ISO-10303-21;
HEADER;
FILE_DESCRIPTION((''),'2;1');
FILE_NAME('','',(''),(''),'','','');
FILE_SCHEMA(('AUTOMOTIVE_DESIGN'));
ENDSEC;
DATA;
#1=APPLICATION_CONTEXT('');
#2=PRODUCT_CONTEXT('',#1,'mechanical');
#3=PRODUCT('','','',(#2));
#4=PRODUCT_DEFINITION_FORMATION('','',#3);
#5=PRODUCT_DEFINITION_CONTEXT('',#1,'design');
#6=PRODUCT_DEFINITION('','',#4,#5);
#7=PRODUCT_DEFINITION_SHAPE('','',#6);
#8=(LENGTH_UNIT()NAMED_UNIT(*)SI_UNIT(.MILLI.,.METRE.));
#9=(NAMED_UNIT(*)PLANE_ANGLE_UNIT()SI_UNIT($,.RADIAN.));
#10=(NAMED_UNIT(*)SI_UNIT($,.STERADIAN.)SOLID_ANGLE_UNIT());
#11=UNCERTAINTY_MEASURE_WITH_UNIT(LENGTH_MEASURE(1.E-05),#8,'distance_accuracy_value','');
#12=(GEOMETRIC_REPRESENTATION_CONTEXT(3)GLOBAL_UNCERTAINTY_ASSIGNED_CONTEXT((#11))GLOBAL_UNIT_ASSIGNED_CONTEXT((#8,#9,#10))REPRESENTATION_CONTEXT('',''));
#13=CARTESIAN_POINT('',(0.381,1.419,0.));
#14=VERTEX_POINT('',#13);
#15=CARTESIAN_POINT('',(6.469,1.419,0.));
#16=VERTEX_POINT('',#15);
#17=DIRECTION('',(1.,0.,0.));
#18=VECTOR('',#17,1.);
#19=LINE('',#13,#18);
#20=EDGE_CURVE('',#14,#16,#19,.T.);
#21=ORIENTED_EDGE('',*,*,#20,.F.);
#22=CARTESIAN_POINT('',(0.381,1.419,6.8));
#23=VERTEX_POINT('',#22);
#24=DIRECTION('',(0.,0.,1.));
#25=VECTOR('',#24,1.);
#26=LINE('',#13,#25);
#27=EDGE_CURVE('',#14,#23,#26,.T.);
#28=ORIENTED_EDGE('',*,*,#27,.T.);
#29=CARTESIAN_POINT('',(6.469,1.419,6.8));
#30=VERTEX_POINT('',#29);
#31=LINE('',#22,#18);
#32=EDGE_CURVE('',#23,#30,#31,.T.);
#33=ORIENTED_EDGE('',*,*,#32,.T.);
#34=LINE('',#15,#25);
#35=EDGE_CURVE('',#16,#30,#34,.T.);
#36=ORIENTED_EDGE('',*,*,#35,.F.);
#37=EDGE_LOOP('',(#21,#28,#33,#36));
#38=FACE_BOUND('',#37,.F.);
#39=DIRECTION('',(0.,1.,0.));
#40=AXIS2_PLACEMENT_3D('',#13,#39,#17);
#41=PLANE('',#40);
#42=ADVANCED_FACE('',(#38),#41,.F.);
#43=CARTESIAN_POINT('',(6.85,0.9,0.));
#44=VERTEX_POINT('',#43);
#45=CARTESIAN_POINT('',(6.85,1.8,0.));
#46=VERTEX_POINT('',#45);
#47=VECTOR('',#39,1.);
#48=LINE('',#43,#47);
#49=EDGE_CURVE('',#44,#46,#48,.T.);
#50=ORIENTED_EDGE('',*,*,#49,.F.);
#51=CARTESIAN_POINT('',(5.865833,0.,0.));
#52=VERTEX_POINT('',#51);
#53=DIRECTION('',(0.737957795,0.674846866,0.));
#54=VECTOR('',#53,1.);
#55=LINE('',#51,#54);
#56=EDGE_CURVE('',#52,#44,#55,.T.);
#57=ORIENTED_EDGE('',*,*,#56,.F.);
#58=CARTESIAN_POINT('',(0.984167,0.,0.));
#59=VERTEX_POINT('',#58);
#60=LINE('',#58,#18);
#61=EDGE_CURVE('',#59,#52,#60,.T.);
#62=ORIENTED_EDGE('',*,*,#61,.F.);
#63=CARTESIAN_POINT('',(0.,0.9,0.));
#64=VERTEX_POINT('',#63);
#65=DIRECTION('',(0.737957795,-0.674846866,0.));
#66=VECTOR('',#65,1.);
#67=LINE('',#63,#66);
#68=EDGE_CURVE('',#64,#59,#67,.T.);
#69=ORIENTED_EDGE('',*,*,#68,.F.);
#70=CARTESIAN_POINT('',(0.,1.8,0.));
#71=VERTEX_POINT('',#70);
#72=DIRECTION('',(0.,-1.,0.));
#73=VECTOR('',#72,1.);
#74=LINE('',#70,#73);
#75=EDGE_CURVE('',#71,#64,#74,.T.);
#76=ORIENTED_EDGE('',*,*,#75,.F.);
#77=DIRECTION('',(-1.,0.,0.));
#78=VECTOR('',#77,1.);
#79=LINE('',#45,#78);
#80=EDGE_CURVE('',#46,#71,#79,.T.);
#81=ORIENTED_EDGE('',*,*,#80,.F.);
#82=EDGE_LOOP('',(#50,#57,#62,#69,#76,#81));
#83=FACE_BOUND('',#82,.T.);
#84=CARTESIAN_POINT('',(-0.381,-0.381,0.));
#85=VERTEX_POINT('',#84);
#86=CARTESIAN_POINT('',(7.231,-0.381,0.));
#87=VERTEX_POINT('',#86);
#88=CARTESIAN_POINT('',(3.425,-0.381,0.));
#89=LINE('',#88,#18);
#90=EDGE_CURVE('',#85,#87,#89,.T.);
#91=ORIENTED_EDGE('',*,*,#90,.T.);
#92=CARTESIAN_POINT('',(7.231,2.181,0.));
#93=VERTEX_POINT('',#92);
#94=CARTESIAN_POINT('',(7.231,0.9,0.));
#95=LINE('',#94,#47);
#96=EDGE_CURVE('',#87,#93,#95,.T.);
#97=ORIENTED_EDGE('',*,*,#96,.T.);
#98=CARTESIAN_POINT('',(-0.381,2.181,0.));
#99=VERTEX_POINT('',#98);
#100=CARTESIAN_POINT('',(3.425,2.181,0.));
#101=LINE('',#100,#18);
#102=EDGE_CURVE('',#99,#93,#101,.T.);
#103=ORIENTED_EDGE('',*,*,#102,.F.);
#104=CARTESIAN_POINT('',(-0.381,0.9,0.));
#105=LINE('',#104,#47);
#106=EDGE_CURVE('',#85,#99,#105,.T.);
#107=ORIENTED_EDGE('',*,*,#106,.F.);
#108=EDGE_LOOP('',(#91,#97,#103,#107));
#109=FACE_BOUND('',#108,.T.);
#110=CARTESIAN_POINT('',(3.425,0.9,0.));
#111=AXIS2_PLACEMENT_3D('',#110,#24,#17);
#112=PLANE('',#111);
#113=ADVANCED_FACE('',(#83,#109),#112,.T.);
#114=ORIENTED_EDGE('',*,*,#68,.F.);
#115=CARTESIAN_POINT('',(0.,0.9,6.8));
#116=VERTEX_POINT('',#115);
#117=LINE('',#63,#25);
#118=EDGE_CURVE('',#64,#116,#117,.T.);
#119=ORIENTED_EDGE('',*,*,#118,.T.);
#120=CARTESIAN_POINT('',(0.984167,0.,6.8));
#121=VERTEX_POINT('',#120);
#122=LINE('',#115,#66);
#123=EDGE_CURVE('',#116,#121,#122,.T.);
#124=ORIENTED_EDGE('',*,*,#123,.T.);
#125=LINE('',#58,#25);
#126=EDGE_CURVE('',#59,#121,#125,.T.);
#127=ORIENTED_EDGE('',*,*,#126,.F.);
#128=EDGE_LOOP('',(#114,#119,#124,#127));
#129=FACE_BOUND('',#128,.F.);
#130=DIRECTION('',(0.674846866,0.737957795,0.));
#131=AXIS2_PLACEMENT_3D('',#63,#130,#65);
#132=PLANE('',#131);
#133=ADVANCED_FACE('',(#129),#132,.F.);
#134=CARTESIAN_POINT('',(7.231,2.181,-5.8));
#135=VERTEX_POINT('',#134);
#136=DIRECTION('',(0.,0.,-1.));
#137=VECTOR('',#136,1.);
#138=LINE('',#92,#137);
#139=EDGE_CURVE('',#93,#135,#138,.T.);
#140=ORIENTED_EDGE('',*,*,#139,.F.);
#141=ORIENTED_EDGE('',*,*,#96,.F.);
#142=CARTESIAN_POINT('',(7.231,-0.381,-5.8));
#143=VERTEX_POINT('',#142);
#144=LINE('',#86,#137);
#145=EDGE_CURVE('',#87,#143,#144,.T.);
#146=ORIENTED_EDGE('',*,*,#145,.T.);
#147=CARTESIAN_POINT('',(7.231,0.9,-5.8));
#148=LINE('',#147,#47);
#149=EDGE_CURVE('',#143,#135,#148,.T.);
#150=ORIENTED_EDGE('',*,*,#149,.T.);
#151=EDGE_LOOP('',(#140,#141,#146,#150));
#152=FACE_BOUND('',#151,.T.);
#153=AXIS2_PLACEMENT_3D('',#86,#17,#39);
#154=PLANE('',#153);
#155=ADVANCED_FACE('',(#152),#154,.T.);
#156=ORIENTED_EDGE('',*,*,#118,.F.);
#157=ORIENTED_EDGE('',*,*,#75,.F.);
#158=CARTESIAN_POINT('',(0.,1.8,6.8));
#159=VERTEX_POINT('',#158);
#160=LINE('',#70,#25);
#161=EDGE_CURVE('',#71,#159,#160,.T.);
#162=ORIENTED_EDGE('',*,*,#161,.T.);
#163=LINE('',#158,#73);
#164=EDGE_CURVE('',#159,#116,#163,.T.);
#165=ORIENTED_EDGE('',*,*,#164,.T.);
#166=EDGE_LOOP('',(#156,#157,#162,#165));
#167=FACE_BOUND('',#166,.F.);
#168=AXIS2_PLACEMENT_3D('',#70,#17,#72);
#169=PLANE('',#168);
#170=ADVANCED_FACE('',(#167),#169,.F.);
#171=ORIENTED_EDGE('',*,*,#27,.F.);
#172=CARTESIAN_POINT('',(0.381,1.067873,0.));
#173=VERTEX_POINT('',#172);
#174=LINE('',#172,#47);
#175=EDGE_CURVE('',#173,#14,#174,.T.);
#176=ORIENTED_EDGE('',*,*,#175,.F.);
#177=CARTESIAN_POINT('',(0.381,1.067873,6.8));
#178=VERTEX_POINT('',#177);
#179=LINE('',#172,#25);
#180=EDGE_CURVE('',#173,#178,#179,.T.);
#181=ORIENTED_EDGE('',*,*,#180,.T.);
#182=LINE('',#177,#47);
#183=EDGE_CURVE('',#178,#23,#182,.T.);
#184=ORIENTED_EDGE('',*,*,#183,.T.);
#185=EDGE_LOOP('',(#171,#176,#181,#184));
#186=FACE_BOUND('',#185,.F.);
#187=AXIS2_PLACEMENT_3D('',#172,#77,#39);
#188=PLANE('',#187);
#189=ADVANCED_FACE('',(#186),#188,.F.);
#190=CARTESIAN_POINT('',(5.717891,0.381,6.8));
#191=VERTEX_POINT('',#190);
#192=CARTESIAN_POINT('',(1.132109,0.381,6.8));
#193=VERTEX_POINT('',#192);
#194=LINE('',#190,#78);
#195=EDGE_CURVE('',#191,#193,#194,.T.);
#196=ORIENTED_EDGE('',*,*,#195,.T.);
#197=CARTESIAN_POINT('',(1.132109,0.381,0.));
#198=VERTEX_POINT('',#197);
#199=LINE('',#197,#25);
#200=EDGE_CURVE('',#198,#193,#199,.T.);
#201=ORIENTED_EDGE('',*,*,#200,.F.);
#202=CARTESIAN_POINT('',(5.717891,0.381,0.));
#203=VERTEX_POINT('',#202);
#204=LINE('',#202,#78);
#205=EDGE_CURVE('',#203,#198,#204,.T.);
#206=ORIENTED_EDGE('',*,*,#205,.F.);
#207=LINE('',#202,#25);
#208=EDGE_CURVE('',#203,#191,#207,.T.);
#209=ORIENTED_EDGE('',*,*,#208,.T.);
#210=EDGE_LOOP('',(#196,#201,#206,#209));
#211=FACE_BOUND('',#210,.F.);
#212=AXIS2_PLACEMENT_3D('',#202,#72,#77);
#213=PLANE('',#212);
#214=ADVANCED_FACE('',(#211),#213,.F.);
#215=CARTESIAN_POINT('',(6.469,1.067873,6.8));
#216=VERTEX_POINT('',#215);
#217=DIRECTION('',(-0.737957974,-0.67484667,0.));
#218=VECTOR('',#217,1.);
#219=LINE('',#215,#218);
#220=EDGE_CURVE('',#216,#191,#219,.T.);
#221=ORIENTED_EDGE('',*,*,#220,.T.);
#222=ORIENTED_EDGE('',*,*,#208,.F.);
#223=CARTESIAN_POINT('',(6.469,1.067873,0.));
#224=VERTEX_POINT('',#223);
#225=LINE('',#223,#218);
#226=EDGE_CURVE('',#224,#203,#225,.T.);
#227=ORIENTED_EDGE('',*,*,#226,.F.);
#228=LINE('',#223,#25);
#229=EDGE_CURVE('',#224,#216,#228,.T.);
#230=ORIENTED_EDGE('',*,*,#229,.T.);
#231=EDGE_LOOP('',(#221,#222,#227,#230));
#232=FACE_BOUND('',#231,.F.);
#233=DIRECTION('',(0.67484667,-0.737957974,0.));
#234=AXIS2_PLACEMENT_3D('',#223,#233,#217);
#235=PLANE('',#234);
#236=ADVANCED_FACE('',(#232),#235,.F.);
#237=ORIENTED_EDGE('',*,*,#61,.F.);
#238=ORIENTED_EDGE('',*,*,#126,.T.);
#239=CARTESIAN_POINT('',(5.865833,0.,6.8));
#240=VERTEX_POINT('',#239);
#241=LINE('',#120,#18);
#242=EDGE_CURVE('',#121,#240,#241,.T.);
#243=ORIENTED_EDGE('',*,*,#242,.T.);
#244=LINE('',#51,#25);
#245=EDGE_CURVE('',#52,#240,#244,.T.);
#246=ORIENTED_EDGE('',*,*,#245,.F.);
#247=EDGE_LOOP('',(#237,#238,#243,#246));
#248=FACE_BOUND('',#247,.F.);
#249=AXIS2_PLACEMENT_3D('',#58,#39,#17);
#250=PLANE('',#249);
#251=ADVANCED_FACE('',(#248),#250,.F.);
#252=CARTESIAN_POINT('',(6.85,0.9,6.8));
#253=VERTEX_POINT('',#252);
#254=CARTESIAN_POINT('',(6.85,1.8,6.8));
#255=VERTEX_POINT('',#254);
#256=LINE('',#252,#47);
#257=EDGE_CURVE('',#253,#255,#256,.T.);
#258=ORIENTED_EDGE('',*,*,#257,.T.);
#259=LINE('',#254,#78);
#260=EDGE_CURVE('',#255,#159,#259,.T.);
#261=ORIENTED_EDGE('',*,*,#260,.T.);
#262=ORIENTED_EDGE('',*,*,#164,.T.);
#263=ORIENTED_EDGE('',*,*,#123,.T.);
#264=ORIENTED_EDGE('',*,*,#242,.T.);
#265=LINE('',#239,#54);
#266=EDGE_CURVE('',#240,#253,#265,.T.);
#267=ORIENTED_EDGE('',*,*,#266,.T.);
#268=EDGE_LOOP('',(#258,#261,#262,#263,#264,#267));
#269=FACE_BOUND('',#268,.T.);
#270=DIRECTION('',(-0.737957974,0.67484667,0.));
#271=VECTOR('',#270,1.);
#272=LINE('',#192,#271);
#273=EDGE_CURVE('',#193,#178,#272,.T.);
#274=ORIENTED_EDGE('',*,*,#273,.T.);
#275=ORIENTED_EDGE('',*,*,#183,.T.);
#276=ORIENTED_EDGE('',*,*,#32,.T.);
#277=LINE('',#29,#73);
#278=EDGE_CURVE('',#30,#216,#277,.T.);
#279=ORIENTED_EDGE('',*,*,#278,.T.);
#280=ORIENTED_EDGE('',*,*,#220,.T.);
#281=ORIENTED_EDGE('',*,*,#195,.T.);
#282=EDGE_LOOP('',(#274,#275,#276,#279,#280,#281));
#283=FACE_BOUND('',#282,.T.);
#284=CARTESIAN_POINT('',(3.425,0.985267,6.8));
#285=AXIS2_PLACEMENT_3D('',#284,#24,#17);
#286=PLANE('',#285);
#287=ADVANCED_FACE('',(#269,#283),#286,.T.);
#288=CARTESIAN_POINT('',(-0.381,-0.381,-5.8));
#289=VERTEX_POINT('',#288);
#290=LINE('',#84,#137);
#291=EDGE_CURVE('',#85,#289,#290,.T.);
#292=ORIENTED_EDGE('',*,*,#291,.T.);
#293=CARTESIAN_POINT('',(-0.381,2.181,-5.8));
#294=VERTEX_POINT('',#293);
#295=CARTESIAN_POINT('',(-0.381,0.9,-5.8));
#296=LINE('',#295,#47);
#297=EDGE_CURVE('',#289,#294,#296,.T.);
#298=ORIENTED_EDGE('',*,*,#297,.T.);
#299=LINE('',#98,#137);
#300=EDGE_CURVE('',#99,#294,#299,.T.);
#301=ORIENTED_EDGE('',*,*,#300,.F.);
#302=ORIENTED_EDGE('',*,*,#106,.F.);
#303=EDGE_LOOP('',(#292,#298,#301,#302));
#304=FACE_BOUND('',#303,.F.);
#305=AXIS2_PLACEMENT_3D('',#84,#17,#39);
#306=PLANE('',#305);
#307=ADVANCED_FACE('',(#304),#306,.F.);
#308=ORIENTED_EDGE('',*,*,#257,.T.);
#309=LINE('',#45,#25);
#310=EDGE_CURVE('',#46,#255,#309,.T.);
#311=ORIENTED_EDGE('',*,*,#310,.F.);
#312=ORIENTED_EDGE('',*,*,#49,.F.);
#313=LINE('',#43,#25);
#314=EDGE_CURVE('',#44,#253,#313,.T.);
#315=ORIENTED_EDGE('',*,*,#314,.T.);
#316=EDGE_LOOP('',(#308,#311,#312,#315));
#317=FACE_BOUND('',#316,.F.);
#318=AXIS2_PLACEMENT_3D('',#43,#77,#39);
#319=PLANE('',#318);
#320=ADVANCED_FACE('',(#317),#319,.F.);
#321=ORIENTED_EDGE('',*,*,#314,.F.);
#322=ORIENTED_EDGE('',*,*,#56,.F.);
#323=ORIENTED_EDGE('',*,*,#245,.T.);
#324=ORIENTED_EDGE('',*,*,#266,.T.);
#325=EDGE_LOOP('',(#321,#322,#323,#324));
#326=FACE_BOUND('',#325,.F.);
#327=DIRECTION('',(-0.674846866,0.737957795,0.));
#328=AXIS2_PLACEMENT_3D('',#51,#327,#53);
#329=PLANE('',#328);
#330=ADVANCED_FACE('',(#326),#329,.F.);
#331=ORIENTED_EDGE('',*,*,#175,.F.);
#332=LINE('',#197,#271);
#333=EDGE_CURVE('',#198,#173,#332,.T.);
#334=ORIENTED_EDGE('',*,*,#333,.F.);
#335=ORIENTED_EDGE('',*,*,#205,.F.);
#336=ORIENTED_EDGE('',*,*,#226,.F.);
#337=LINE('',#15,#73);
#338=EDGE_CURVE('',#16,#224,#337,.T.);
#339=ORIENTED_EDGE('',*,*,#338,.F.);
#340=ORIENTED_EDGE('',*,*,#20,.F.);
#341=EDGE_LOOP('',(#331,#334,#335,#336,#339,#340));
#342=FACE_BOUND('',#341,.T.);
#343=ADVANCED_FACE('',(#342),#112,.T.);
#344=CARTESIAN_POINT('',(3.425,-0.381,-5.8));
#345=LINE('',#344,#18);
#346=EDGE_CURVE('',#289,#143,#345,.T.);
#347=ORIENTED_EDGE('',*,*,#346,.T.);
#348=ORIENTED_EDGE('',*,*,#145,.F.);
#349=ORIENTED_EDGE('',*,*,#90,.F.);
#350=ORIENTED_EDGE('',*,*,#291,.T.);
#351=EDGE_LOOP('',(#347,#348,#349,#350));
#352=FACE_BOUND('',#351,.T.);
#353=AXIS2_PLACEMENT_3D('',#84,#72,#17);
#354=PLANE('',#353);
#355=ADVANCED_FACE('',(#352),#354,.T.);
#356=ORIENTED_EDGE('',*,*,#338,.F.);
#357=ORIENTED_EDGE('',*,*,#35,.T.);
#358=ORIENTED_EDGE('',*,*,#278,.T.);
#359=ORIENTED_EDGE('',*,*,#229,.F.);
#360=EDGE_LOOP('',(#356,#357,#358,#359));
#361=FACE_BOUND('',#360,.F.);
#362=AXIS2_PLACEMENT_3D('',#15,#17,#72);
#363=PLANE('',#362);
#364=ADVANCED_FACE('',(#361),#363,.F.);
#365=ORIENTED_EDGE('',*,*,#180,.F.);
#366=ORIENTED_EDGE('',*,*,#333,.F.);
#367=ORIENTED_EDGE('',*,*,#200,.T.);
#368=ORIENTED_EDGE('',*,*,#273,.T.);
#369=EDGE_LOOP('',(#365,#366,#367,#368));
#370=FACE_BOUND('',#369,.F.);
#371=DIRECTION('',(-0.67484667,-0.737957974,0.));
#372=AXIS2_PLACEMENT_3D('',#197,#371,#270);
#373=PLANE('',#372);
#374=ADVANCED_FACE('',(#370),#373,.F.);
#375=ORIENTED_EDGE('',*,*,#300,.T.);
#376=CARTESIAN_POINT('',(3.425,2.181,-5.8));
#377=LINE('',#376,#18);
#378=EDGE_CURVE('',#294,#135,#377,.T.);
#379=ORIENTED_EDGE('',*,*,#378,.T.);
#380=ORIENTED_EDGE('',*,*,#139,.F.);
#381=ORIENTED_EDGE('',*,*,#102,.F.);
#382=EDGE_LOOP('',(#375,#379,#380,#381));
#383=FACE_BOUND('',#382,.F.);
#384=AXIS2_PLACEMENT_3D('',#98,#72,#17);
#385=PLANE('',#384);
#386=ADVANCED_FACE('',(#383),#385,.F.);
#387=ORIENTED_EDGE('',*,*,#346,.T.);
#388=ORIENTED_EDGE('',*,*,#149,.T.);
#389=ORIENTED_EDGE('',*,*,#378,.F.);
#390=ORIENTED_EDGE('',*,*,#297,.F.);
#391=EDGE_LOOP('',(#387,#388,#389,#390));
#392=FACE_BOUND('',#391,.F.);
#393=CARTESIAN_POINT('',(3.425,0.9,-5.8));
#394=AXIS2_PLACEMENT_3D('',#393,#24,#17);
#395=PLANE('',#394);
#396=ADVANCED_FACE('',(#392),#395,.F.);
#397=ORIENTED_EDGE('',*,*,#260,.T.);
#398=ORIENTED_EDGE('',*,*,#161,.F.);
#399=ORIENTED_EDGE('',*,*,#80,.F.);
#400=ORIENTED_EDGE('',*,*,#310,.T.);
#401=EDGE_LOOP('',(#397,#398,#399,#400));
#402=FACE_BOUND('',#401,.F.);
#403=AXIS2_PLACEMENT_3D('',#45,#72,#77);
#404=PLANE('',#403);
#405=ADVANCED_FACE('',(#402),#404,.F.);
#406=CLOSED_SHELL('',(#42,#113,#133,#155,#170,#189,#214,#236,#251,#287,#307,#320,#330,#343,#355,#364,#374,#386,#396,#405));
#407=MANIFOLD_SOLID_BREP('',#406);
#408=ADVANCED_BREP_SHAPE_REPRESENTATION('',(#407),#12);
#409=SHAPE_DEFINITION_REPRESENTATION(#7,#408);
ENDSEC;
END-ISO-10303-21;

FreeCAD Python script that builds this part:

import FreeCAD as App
import Part
import Sketcher

V = App.Vector


def add_polygon(sketch, points):
    """Adds a closed chain of lines whose ends are joined by coincident constraints."""
    first, n = sketch.GeometryCount, len(points)
    for a, b in zip(points, points[1:] + points[:1]):
        sketch.addGeometry(Part.LineSegment(App.Vector(*a, 0), App.Vector(*b, 0)), False)
    for i in range(n):
        sketch.addConstraint(Sketcher.Constraint("Coincident", first + i, 2, first + (i + 1) % n, 1))

doc = App.newDocument("Part")
body = doc.addObject("PartDesign::Body", "Body")

sketch1 = doc.addObject("Sketcher::SketchObject", "Sketch")
body.addObject(sketch1)
sketch1.AttachmentSupport = (doc.XY_Plane, [""])
sketch1.MapMode = "FlatFace"
add_polygon(sketch1, [(0, 0.9), (0.98, 0), (5.87, 0), (6.85, 0.9), (6.85, 1.8), (0, 1.8)])
add_polygon(sketch1, [(5.72, 0.38), (1.13, 0.38), (0.38, 1.07), (0.38, 1.42), (6.47, 1.42), (6.47, 1.07)])
sketch1.addConstraint([
    Sketcher.Constraint("Horizontal", 1),
    Sketcher.Constraint("Vertical", 3),
    Sketcher.Constraint("Horizontal", 4),
    Sketcher.Constraint("Vertical", 5),
    Sketcher.Constraint("Horizontal", 6),
    Sketcher.Constraint("Vertical", 8),
    Sketcher.Constraint("Horizontal", 9),
    Sketcher.Constraint("Vertical", 10),
    Sketcher.Constraint("PointOnObject", 0, 2, -1),
    Sketcher.Constraint("PointOnObject", 4, 2, -2),
    Sketcher.Constraint("Parallel", 0, 7),
    Sketcher.Constraint("Parallel", 2, 11),
    Sketcher.Constraint("Horizontal", 2, 2, 5, 2),
    Sketcher.Constraint("Horizontal", 7, 2, 10, 2),
    Sketcher.Constraint("Equal", 0, 2),
    Sketcher.Constraint("DistanceY", 3, 1, 3, 2, 0.9),
    Sketcher.Constraint("DistanceX", 4, 2, 4, 1, 6.85),
    Sketcher.Constraint("DistanceY", -1, 1, 2, 2, 0.9),
    Sketcher.Constraint("DistanceX", 9, 1, 9, 2, 6.088),
    Sketcher.Constraint("DistanceY", -1, 1, 6, 2, 0.381),
    Sketcher.Constraint("DistanceX", -1, 1, 7, 2, 0.381),
    Sketcher.Constraint("DistanceY", -1, 1, 8, 2, 1.419),
    Sketcher.Constraint("Distance", 7, 1.017821),
    Sketcher.Constraint("DistanceX", 1, 1, 1, 2, 4.881666),
])
pad1 = doc.addObject("PartDesign::Pad", "Pad")
body.addObject(pad1)
pad1.Profile = sketch1
pad1.Length = 6.8

sketch2 = doc.addObject("Sketcher::SketchObject", "Sketch001")
body.addObject(sketch2)
sketch2.AttachmentSupport = (doc.XY_Plane, [""])
sketch2.MapMode = "FlatFace"
add_polygon(sketch2, [(-0.4, 2.2), (-0.4, -0.4), (7.2, -0.4), (7.2, 2.2)])
sketch2.addConstraint([
    Sketcher.Constraint("Vertical", 0),
    Sketcher.Constraint("Horizontal", 1),
    Sketcher.Constraint("Vertical", 2),
    Sketcher.Constraint("Horizontal", 3),
    Sketcher.Constraint("DistanceX", 1, 1, 1, 2, 7.612),
    Sketcher.Constraint("DistanceY", 0, 2, 0, 1, 2.562),
    Sketcher.Constraint("DistanceX", 0, 2, -1, 1, 0.381),
    Sketcher.Constraint("DistanceY", 0, 2, -1, 1, 0.381),
])
pad2 = doc.addObject("PartDesign::Pad", "Pad001")
body.addObject(pad2)
pad2.Profile = sketch2
pad2.Length = 5.8
pad2.Reversed = True

doc.recompute()
